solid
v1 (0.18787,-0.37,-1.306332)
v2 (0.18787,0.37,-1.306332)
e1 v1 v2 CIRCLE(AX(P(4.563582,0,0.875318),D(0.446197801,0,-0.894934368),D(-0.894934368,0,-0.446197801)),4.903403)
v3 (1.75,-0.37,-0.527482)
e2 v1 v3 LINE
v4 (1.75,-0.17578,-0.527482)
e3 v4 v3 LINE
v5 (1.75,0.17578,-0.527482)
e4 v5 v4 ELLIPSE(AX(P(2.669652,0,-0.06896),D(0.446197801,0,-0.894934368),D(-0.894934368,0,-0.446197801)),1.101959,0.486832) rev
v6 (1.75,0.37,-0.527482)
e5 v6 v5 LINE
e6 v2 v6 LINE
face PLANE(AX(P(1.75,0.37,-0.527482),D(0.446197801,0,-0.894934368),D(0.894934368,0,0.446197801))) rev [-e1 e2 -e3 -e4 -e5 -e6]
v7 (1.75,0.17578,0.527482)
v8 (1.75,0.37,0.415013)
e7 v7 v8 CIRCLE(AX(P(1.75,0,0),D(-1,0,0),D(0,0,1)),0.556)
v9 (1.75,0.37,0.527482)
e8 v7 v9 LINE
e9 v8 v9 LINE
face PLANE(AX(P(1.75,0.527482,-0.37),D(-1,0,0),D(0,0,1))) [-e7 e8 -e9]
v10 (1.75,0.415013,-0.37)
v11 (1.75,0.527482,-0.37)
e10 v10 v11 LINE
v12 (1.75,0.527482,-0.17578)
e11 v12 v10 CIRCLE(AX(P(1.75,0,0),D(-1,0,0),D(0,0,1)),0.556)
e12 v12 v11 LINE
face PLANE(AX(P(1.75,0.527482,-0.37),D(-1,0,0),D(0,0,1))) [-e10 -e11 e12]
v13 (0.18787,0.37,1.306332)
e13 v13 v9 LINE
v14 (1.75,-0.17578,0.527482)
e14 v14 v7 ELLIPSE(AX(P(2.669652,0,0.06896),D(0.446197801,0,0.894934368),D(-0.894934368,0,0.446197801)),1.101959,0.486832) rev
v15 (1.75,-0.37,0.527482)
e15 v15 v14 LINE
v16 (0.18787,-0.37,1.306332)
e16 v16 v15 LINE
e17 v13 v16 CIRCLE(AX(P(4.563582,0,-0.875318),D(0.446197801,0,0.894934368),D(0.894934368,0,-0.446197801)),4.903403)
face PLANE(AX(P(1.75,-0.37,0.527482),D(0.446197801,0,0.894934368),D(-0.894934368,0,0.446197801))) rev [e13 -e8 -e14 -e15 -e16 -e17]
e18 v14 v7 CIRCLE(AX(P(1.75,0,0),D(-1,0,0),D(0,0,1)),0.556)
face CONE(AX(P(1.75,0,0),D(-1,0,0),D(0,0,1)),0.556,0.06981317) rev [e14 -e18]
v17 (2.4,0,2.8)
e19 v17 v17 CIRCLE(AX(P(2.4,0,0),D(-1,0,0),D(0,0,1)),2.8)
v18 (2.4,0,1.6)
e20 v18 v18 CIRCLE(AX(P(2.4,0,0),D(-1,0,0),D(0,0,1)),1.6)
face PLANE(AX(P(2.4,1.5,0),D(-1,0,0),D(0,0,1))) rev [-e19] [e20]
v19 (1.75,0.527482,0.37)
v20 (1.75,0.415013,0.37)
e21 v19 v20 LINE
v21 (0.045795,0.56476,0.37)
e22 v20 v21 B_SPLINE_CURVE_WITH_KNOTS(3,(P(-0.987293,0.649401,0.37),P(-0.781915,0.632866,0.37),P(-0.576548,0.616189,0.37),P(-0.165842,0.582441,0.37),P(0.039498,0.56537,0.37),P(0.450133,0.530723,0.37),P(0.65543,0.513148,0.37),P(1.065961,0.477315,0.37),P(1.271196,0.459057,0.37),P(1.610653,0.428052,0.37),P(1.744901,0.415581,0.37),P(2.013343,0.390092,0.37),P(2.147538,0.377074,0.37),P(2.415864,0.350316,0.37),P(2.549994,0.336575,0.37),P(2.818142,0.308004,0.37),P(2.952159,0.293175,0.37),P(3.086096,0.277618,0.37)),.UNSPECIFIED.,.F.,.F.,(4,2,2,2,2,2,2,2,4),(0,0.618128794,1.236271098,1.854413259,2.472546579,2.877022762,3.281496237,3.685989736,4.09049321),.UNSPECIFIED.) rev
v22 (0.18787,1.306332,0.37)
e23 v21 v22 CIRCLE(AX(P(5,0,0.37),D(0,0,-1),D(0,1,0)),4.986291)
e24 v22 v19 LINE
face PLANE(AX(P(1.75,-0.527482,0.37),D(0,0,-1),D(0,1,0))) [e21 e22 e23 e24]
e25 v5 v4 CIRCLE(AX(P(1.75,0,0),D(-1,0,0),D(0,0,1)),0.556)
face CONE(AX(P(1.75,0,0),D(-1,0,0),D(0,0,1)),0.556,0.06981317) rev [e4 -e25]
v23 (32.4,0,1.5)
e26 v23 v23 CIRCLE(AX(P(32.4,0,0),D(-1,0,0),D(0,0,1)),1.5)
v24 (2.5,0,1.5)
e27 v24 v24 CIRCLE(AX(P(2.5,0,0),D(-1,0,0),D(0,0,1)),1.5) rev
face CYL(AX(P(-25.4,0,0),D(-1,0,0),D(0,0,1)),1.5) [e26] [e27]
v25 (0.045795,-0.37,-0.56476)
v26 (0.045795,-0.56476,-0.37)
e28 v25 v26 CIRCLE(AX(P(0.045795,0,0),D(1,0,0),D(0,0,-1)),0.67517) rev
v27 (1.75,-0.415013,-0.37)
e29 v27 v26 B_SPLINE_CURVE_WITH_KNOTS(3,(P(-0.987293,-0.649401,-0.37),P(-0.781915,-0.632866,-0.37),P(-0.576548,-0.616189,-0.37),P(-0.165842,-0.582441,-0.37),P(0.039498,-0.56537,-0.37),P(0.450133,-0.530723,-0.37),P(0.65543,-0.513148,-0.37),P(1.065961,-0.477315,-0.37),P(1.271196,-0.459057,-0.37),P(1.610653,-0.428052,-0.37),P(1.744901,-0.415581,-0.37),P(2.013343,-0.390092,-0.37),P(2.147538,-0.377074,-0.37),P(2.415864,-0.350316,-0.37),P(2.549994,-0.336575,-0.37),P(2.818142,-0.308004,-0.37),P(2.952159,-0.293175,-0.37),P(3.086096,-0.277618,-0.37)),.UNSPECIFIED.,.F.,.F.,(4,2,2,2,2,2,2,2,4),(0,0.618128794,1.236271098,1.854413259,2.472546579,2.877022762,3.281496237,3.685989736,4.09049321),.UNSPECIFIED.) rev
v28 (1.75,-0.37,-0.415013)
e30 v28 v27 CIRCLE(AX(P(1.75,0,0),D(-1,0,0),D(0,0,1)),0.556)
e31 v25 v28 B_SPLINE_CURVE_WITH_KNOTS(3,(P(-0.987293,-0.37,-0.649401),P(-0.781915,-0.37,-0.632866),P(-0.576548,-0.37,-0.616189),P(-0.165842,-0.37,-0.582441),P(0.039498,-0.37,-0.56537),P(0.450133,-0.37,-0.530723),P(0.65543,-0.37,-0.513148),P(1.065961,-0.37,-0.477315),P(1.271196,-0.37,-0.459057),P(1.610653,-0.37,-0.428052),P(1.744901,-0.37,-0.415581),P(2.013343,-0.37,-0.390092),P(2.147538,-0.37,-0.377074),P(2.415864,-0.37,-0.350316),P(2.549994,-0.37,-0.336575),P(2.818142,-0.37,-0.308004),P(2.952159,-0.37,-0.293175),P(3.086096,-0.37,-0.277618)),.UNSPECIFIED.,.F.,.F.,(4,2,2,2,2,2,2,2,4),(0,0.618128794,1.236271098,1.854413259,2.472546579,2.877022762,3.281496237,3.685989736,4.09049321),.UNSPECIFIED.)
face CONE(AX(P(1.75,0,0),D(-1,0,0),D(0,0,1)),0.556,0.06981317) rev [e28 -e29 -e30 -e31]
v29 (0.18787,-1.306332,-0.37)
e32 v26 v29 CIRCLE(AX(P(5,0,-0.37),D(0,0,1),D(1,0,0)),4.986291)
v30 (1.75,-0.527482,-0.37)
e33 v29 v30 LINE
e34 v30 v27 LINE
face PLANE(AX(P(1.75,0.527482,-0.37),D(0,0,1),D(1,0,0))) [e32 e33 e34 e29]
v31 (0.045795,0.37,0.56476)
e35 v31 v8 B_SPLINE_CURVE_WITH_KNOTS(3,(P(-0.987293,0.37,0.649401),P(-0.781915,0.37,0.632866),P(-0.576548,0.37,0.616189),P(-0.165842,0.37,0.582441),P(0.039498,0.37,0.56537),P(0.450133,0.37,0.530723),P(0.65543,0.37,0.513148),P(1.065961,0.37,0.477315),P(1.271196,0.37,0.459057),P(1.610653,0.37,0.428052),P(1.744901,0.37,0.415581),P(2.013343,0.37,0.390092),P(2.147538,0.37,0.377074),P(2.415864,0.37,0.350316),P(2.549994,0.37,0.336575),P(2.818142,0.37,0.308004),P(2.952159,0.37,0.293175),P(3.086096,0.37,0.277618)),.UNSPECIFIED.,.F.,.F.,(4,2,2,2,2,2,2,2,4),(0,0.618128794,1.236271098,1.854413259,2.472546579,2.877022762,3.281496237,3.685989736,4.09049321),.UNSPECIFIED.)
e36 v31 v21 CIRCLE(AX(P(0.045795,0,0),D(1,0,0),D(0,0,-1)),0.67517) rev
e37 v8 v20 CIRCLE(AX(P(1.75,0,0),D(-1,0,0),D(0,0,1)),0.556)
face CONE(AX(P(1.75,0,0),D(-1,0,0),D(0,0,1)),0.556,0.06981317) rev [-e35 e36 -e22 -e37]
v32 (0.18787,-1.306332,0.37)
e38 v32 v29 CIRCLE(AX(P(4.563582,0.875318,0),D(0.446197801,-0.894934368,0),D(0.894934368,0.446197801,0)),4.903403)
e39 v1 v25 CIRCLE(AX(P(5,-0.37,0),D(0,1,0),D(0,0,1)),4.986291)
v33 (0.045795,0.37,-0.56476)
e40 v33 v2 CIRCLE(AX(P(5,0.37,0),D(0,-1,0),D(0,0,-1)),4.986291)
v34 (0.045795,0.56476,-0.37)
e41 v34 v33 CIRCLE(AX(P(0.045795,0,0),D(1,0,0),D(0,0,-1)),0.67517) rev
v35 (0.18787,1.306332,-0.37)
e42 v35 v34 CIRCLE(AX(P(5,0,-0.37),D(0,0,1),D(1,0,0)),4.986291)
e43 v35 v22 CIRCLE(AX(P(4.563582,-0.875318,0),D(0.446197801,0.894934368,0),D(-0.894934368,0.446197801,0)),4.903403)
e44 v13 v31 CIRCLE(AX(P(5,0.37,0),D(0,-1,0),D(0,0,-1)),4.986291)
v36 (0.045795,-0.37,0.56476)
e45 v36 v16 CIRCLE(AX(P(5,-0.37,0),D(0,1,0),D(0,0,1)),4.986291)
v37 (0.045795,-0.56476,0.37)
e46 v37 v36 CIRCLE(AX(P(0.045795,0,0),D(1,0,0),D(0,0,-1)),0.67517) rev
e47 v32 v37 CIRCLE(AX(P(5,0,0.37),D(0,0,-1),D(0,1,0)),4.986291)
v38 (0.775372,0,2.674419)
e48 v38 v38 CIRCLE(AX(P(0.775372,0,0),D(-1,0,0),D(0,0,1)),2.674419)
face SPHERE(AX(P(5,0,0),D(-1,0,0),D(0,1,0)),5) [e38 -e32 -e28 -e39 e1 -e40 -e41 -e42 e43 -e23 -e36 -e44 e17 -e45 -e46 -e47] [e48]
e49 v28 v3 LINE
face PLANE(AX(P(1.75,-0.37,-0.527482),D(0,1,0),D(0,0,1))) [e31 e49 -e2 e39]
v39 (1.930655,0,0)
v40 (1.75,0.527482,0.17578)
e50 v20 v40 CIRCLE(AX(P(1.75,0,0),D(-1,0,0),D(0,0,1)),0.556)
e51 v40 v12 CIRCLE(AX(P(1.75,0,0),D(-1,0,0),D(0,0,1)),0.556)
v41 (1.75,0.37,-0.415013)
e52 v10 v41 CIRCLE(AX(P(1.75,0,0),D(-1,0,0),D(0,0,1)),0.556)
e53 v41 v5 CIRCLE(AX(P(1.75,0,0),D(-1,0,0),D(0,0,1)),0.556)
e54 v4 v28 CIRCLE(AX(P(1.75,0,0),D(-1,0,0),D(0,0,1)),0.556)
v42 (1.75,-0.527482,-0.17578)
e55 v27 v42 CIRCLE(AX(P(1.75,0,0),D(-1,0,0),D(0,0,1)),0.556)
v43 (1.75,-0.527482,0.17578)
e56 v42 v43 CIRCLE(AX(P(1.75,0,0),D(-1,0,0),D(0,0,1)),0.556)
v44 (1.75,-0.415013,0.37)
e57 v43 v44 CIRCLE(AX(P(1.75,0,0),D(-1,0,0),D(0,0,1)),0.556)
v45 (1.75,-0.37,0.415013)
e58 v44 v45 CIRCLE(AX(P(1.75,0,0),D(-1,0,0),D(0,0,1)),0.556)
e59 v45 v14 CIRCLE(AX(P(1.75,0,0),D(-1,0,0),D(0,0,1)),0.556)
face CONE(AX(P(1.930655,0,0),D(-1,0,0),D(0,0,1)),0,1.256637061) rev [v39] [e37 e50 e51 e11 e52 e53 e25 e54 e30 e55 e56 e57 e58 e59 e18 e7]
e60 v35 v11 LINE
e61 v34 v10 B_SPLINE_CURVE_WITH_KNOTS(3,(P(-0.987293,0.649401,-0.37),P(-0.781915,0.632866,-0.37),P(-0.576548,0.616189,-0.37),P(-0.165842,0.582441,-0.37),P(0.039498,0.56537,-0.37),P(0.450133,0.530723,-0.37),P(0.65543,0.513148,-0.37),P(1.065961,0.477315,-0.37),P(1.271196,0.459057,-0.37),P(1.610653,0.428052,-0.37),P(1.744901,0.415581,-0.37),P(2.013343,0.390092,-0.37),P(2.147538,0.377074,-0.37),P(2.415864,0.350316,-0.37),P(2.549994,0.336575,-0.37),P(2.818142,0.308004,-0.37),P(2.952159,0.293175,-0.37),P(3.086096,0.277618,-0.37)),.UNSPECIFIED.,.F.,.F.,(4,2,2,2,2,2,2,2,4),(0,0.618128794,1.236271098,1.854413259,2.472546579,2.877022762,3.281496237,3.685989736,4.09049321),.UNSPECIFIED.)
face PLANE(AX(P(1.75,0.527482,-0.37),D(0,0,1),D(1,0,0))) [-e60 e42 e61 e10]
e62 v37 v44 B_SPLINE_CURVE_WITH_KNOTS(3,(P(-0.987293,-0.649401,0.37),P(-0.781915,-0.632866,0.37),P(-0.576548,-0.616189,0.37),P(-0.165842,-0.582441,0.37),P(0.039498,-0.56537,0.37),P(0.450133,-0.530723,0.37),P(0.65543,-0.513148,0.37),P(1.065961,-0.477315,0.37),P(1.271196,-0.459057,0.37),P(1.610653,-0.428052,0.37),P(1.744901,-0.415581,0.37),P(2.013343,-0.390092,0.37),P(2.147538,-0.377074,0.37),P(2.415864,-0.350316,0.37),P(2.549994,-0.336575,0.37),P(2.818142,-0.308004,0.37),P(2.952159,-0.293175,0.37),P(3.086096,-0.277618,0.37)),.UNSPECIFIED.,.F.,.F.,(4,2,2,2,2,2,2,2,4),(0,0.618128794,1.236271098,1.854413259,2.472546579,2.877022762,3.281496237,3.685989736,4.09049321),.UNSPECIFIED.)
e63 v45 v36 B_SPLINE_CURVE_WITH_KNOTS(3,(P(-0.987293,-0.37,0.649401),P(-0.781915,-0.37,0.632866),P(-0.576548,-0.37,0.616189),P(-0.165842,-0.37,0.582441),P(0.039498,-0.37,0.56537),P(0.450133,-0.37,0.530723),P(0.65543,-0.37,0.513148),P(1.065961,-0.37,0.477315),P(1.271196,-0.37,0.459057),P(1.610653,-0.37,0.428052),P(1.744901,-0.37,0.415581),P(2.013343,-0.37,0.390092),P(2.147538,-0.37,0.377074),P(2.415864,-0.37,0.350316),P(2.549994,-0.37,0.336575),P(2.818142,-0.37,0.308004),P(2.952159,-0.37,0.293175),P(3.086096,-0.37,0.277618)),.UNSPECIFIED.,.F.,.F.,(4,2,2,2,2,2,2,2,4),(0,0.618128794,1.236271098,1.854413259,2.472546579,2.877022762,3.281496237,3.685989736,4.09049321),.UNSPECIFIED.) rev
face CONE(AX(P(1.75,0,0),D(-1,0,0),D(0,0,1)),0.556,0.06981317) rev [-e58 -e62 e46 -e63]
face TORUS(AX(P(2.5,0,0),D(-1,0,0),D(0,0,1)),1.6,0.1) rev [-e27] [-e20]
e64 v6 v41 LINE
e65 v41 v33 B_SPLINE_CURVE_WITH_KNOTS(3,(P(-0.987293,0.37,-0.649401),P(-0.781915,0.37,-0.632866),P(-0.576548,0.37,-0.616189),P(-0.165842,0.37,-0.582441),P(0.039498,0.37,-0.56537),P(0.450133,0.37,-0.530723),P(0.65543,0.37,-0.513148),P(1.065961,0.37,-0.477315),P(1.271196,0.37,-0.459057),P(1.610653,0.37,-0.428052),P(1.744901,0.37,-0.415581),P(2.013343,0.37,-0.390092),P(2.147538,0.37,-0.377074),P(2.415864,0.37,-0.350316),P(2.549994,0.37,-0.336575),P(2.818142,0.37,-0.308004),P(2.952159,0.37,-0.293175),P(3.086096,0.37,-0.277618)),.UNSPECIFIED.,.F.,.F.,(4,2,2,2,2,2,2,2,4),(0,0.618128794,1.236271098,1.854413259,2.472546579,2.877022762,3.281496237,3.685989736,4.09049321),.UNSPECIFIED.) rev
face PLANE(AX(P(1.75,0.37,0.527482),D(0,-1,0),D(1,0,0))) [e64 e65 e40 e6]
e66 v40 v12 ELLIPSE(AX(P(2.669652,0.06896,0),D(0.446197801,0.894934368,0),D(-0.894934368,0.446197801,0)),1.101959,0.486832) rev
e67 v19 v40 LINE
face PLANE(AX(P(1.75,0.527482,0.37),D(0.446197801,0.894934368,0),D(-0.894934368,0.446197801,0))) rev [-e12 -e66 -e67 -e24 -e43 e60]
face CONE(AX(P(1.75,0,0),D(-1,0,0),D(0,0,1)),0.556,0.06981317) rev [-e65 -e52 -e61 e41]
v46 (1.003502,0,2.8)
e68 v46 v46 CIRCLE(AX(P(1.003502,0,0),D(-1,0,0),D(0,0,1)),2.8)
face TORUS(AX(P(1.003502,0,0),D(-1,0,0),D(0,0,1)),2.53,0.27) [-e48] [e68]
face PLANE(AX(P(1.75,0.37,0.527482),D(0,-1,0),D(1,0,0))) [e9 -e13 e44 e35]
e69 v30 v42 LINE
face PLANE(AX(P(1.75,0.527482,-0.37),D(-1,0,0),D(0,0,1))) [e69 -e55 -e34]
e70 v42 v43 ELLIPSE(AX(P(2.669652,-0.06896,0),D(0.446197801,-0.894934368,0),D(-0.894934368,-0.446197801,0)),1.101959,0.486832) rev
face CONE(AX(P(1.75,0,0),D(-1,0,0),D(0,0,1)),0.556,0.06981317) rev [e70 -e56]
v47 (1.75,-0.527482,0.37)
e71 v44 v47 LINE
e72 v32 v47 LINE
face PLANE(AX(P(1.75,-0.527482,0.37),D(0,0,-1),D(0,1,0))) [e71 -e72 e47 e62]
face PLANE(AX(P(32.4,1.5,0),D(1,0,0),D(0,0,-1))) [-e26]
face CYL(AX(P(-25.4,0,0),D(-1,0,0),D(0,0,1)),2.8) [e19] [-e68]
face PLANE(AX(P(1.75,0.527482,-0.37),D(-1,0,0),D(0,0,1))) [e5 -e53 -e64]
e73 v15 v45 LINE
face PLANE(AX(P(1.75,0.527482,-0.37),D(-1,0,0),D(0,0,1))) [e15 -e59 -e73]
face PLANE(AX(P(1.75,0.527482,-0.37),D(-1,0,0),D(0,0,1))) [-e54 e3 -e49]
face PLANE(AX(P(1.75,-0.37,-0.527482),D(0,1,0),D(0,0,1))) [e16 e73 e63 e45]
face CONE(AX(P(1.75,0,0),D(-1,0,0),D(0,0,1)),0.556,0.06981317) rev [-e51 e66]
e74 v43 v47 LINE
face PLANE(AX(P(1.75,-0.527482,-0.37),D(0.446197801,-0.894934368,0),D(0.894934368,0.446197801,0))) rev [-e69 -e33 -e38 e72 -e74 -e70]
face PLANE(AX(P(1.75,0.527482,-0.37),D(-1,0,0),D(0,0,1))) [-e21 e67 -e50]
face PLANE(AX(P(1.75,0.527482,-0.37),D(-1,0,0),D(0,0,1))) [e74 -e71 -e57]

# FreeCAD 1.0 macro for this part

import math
import FreeCAD as App
import Part
import Sketcher
from FreeCAD import Vector
Q = App.Units.Quantity


def edges_at(feature, points):
    """Names of the edges that pass closest to the given points."""
    edges = feature.Shape.Edges
    near = lambda p: min(range(len(edges)), key=lambda i: edges[i].distToShape(Part.Vertex(*p))[0])
    return sorted({f"Edge{near(p) + 1}" for p in points})

doc = App.newDocument("Part")
body = doc.addObject("PartDesign::Body", "Body")

# Sketch on XY plane
sketch1 = doc.addObject("Sketcher::SketchObject", "Sketch")
body.addObject(sketch1)
sketch1.AttachmentSupport = (doc.XY_Plane, [""])
sketch1.MapMode = "FlatFace"
sketch1.addGeometry(Part.LineSegment(Vector(2.4, 1.5, 0), Vector(2.4, 2.8, 0)), False)
sketch1.addGeometry(Part.LineSegment(Vector(2.4, 2.8, 0), Vector(1.003502, 2.8, 0)), False)
sketch1.addGeometry(Part.ArcOfCircle(Part.Circle(Vector(1.003502, 2.53, 0), Vector(0, 0, 1), 0.27), math.radians(90), math.radians(147.663974)), False)
sketch1.addGeometry(Part.ArcOfCircle(Part.Circle(Vector(5, 0, 0), Vector(0, 0, 1), 5), math.radians(147.663974), math.radians(180)), False)
sketch1.addGeometry(Part.LineSegment(Vector(0, 0, 0), Vector(32.4, 0, 0)), False)
sketch1.addGeometry(Part.LineSegment(Vector(32.4, 0, 0), Vector(32.4, 1.5, 0)), False)
sketch1.addGeometry(Part.LineSegment(Vector(32.4, 1.5, 0), Vector(2.4, 1.5, 0)), False)
sketch1.addConstraint(Sketcher.Constraint("Coincident", 0, 2, 1, 1))
sketch1.addConstraint(Sketcher.Constraint("Tangent", 1, 2, 2, 1))
sketch1.addConstraint(Sketcher.Constraint("Tangent", 2, 2, 3, 1))
sketch1.addConstraint(Sketcher.Constraint("Coincident", 3, 2, 4, 1))
sketch1.addConstraint(Sketcher.Constraint("Coincident", 4, 2, 5, 1))
sketch1.addConstraint(Sketcher.Constraint("Coincident", 5, 2, 6, 1))
sketch1.addConstraint(Sketcher.Constraint("Coincident", 6, 2, 0, 1))
sketch1.addConstraint(Sketcher.Constraint("Vertical", 0))
sketch1.addConstraint(Sketcher.Constraint("Horizontal", 1))
sketch1.addConstraint(Sketcher.Constraint("Horizontal", 4))
sketch1.addConstraint(Sketcher.Constraint("Vertical", 5))
sketch1.addConstraint(Sketcher.Constraint("Horizontal", 6))
sketch1.addConstraint(Sketcher.Constraint("Coincident", 3, 2, -1, 1))
sketch1.addConstraint(Sketcher.Constraint("PointOnObject", 3, 3, -1))
sketch1.addConstraint(Sketcher.Constraint("Radius", 3, Q("5 mm")))
sketch1.addConstraint(Sketcher.Constraint("DistanceX", 6, 2, 6, 1, Q("30 mm")))
sketch1.addConstraint(Sketcher.Constraint("Radius", 2, Q("0.27 mm")))
sketch1.addConstraint(Sketcher.Constraint("DistanceX", 4, 1, 4, 2, Q("32.4 mm")))
sketch1.addConstraint(Sketcher.Constraint("DistanceY", 0, 1, 0, 2, Q("1.3 mm")))
sketch1.addConstraint(Sketcher.Constraint("DistanceY", 5, 1, 5, 2, Q("1.5 mm")))
revolution = doc.addObject("PartDesign::Revolution", "Revolution")
body.addObject(revolution)
revolution.Profile = sketch1
revolution.ReferenceAxis = (sketch1, ["H_Axis"])
revolution.Angle = 360
doc.recompute()

fillet = doc.addObject("PartDesign::Fillet", "Fillet")
body.addObject(fillet)
fillet.Base = (revolution, edges_at(revolution, [(2.4, -1.5, 0)]))
fillet.Radius = 0.1

# Sketch on YZ plane
sketch2 = doc.addObject("Sketcher::SketchObject", "Sketch001")
body.addObject(sketch2)
sketch2.AttachmentSupport = (doc.YZ_Plane, [""])
sketch2.MapMode = "FlatFace"
sketch2.addGeometry(Part.LineSegment(Vector(1.4, 0.37, 0), Vector(-1.4, 0.37, 0)), False)
sketch2.addGeometry(Part.LineSegment(Vector(-1.4, 0.37, 0), Vector(-1.4, -0.37, 0)), False)
sketch2.addGeometry(Part.LineSegment(Vector(-1.4, -0.37, 0), Vector(1.4, -0.37, 0)), False)
sketch2.addGeometry(Part.LineSegment(Vector(1.4, -0.37, 0), Vector(1.4, 0.37, 0)), False)
sketch2.addConstraint(Sketcher.Constraint("Coincident", 0, 2, 1, 1))
sketch2.addConstraint(Sketcher.Constraint("Coincident", 1, 2, 2, 1))
sketch2.addConstraint(Sketcher.Constraint("Coincident", 2, 2, 3, 1))
sketch2.addConstraint(Sketcher.Constraint("Coincident", 3, 2, 0, 1))
sketch2.addConstraint(Sketcher.Constraint("Horizontal", 0))
sketch2.addConstraint(Sketcher.Constraint("Vertical", 1))
sketch2.addConstraint(Sketcher.Constraint("Horizontal", 2))
sketch2.addConstraint(Sketcher.Constraint("Vertical", 3))
sketch2.addConstraint(Sketcher.Constraint("Symmetric", 0, 2, 2, 2, -1, 1))
sketch2.addConstraint(Sketcher.Constraint("DistanceX", 0, 2, 0, 1, Q("2.8 mm")))
sketch2.addConstraint(Sketcher.Constraint("DistanceY", 1, 2, 1, 1, Q("0.74 mm")))

# Sketch on YZ plane
sketch3 = doc.addObject("Sketcher::SketchObject", "Sketch002")
body.addObject(sketch3)
sketch3.AttachmentSupport = (doc.YZ_Plane, [""])
sketch3.MapMode = "FlatFace"
sketch3.AttachmentOffset = App.Placement(Vector(0, 0, 1.75), App.Rotation())
sketch3.addGeometry(Part.LineSegment(Vector(0.527482, 0.37, 0), Vector(-0.527482, 0.37, 0)), False)
sketch3.addGeometry(Part.LineSegment(Vector(-0.527482, 0.37, 0), Vector(-0.527482, -0.37, 0)), False)
sketch3.addGeometry(Part.LineSegment(Vector(-0.527482, -0.37, 0), Vector(0.527482, -0.37, 0)), False)
sketch3.addGeometry(Part.LineSegment(Vector(0.527482, -0.37, 0), Vector(0.527482, 0.37, 0)), False)
sketch3.addConstraint(Sketcher.Constraint("Coincident", 0, 2, 1, 1))
sketch3.addConstraint(Sketcher.Constraint("Coincident", 1, 2, 2, 1))
sketch3.addConstraint(Sketcher.Constraint("Coincident", 2, 2, 3, 1))
sketch3.addConstraint(Sketcher.Constraint("Coincident", 3, 2, 0, 1))
sketch3.addConstraint(Sketcher.Constraint("Horizontal", 0))
sketch3.addConstraint(Sketcher.Constraint("Vertical", 1))
sketch3.addConstraint(Sketcher.Constraint("Horizontal", 2))
sketch3.addConstraint(Sketcher.Constraint("Vertical", 3))
sketch3.addConstraint(Sketcher.Constraint("Symmetric", 0, 2, 2, 2, -1, 1))
sketch3.addConstraint(Sketcher.Constraint("DistanceY", 1, 2, 1, 1, Q("0.74 mm")))
sketch3.addConstraint(Sketcher.Constraint("DistanceX", 0, 2, 0, 1, Q("1.054964 mm")))

subtractiveloft = doc.addObject("PartDesign::SubtractiveLoft", "SubtractiveLoft")
body.addObject(subtractiveloft)
subtractiveloft.Profile = sketch2
subtractiveloft.Sections = [sketch3]
doc.recompute()

polarpattern = doc.addObject("PartDesign::PolarPattern", "PolarPattern")
body.addObject(polarpattern)
polarpattern.Originals = [subtractiveloft]
polarpattern.Axis = (doc.X_Axis, [""])
polarpattern.Angle = 90
polarpattern.Occurrences = 2
body.Tip = polarpattern

# Sketch on XY plane
sketch4 = doc.addObject("Sketcher::SketchObject", "Sketch003")
body.addObject(sketch4)
sketch4.AttachmentSupport = (doc.XY_Plane, [""])
sketch4.MapMode = "FlatFace"
sketch4.addGeometry(Part.LineSegment(Vector(0, 0.678372, 0), Vector(0, 0, 0)), False)
sketch4.addGeometry(Part.LineSegment(Vector(0, 0, 0), Vector(1.930655, 0, 0)), False)
sketch4.addGeometry(Part.LineSegment(Vector(1.930655, 0, 0), Vector(1.75, 0.556, 0)), False)
sketch4.addGeometry(Part.LineSegment(Vector(1.75, 0.556, 0), Vector(0, 0.678372, 0)), False)
sketch4.addConstraint(Sketcher.Constraint("Coincident", 0, 2, 1, 1))
sketch4.addConstraint(Sketcher.Constraint("Coincident", 1, 2, 2, 1))
sketch4.addConstraint(Sketcher.Constraint("Coincident", 2, 2, 3, 1))
sketch4.addConstraint(Sketcher.Constraint("Coincident", 3, 2, 0, 1))
sketch4.addConstraint(Sketcher.Constraint("Vertical", 0))
sketch4.addConstraint(Sketcher.Constraint("Horizontal", 1))
sketch4.addConstraint(Sketcher.Constraint("Coincident", 0, 2, -1, 1))
sketch4.addConstraint(Sketcher.Constraint("Angle", 2, Q("108 deg")))
sketch4.addConstraint(Sketcher.Constraint("Angle", 3, Q("176 deg")))
sketch4.addConstraint(Sketcher.Constraint("DistanceX", -1, 1, 2, 2, Q("1.75 mm")))
sketch4.addConstraint(Sketcher.Constraint("DistanceY", -1, 1, 2, 2, Q("0.556 mm")))
groove = doc.addObject("PartDesign::Groove", "Groove")
body.addObject(groove)
groove.Profile = sketch4
groove.ReferenceAxis = (sketch4, ["H_Axis"])
groove.Angle = 360

doc.recompute()
